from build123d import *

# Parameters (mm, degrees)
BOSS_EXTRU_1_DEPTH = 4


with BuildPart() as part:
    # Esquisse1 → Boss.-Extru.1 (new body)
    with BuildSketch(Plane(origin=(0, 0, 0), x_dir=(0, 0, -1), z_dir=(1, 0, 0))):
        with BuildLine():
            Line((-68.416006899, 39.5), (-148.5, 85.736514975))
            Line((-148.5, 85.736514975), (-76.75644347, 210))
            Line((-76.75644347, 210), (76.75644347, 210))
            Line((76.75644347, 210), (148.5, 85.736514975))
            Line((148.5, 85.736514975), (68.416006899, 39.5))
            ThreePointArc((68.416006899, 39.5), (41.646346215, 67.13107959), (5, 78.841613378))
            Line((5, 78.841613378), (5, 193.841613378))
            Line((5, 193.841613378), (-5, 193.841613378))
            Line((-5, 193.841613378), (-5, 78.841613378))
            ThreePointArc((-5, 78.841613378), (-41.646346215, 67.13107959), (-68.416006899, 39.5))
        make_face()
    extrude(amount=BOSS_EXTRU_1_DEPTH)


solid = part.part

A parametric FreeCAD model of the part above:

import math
import FreeCAD as App
import Part
import Sketcher
Q = App.Units.Quantity

doc = App.newDocument("Part")
body = doc.addObject("PartDesign::Body", "Body")

sketch1 = doc.addObject("Sketcher::SketchObject", "Sketch")
body.addObject(sketch1)
sketch1.AttachmentSupport = (doc.YZ_Plane, [""])
sketch1.MapMode = "FlatFace"
sketch1.addGeometry([
    Part.LineSegment(App.Vector(86, 148, 0), App.Vector(40, 68, 0)),
    Part.ArcOfCircle(Part.Circle(App.Vector(0, 0, 0), App.Vector(0, 0, 1), 79), math.radians(4), math.radians(60)),
    Part.LineSegment(App.Vector(79, 5, 0), App.Vector(194, 5, 0)),
    Part.LineSegment(App.Vector(194, 5, 0), App.Vector(194, -5, 0)),
    Part.LineSegment(App.Vector(194, -5, 0), App.Vector(79, -5, 0)),
    Part.ArcOfCircle(Part.Circle(App.Vector(0, 0, 0), App.Vector(0, 0, 1), 79), math.radians(-60), math.radians(-4)),
    Part.LineSegment(App.Vector(40, -68, 0), App.Vector(86, -148, 0)),
    Part.LineSegment(App.Vector(86, -148, 0), App.Vector(210, -77, 0)),
    Part.LineSegment(App.Vector(210, -77, 0), App.Vector(210, 77, 0)),
    Part.LineSegment(App.Vector(210, 77, 0), App.Vector(86, 148, 0)),
], False)
sketch1.addConstraint([
    Sketcher.Constraint("Coincident", 0, 2, 1, 2),
    Sketcher.Constraint("Coincident", 1, 1, 2, 1),
    Sketcher.Constraint("Coincident", 2, 2, 3, 1),
    Sketcher.Constraint("Coincident", 3, 2, 4, 1),
    Sketcher.Constraint("Coincident", 4, 2, 5, 2),
    Sketcher.Constraint("Coincident", 5, 1, 6, 1),
    Sketcher.Constraint("Coincident", 6, 2, 7, 1),
    Sketcher.Constraint("Coincident", 7, 2, 8, 1),
    Sketcher.Constraint("Coincident", 8, 2, 9, 1),
    Sketcher.Constraint("Coincident", 9, 2, 0, 1),
    Sketcher.Constraint("Horizontal", 2),
    Sketcher.Constraint("Vertical", 3),
    Sketcher.Constraint("Horizontal", 4),
    Sketcher.Constraint("Vertical", 8),
    Sketcher.Constraint("Coincident", 1, 3, -1, 1),
    Sketcher.Constraint("Coincident", 5, 3, -1, 1),
    Sketcher.Constraint("Equal", 1, 5),
    Sketcher.Constraint("Symmetric", 6, 2, 9, 2, -1),
    Sketcher.Constraint("Perpendicular", 6, 7),
    Sketcher.Constraint("Perpendicular", 0, 9),
    Sketcher.Constraint("Vertical", 1, 1, 4, 2),
    Sketcher.Constraint("Vertical", 0, 2, 5, 1),
    Sketcher.Constraint("Radius", 1, 79.0),
    Sketcher.Constraint("DistanceX", 2, 1, 2, 2, 115.0),
    Sketcher.Constraint("DistanceY", 3, 2, 3, 1, 10.0),
    Sketcher.Constraint("Angle", 0, Q("-120 deg")),
    Sketcher.Constraint("DistanceX", -1, 1, 7, 2, 210.0),
    Sketcher.Constraint("DistanceX", -1, 1, 0, 2, 39.5),
    Sketcher.Constraint("DistanceY", 6, 2, -1, 1, 148.5),
])
pad1 = doc.addObject("PartDesign::Pad", "Pad")
body.addObject(pad1)
pad1.Profile = sketch1
pad1.Length = 4

doc.recompute()
